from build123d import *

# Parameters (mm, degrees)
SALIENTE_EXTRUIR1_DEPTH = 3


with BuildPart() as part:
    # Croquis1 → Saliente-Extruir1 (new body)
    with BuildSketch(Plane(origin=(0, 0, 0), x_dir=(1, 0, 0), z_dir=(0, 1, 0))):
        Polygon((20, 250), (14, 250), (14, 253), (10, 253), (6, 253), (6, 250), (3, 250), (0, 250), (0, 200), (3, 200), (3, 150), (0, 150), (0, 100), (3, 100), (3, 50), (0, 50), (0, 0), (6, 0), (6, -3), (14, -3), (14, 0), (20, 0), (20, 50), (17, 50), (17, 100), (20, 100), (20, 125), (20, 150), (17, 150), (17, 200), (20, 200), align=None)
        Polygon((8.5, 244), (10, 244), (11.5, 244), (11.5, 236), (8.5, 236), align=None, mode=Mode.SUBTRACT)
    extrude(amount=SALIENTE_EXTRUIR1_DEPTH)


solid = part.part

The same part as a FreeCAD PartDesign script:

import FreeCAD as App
import Part
import Sketcher

doc = App.newDocument("Part")
params = doc.addObject("Spreadsheet::Sheet", "Params")
for row, (alias, value) in enumerate([
    ("sketch1_width", "6 mm"),
    ("sketch1_width2", "8 mm"),
    ("sketch1_width3", "3 mm"),
    ("sketch1_height", "50 mm"),
    ("pad1_length", "3 mm"),
], start=1):
    params.set(f"A{row}", alias)
    params.set(f"B{row}", "=" + value)
    params.setAlias(f"B{row}", alias)

body = doc.addObject("PartDesign::Body", "Body")

# Sketch on XZ plane
sketch1 = body.newObject("Sketcher::SketchObject", "Sketch")
sketch1.AttachmentSupport = (doc.getObject("XZ_Plane"), [""])
sketch1.MapMode = "FlatFace"
sketch1.addGeometry([
    Part.LineSegment(App.Vector(20, -250, 0), App.Vector(14, -250, 0)),  # 0
    Part.LineSegment(App.Vector(14, -250, 0), App.Vector(14, -253, 0)),  # 1
    Part.LineSegment(App.Vector(14, -253, 0), App.Vector(6, -253, 0)),  # 2
    Part.LineSegment(App.Vector(6, -253, 0), App.Vector(6, -250, 0)),  # 3
    Part.LineSegment(App.Vector(6, -250, 0), App.Vector(0, -250, 0)),  # 4
    Part.LineSegment(App.Vector(0, -250, 0), App.Vector(0, -200, 0)),  # 5
    Part.LineSegment(App.Vector(0, -200, 0), App.Vector(3, -200, 0)),  # 6
    Part.LineSegment(App.Vector(3, -200, 0), App.Vector(3, -150, 0)),  # 7
    Part.LineSegment(App.Vector(3, -150, 0), App.Vector(0, -150, 0)),  # 8
    Part.LineSegment(App.Vector(0, -150, 0), App.Vector(0, -100, 0)),  # 9
    Part.LineSegment(App.Vector(0, -100, 0), App.Vector(3, -100, 0)),  # 10
    Part.LineSegment(App.Vector(3, -100, 0), App.Vector(3, -50, 0)),  # 11
    Part.LineSegment(App.Vector(3, -50, 0), App.Vector(0, -50, 0)),  # 12
    Part.LineSegment(App.Vector(0, -50, 0), App.Vector(0, 0, 0)),  # 13
    Part.LineSegment(App.Vector(0, 0, 0), App.Vector(6, 0, 0)),  # 14
    Part.LineSegment(App.Vector(6, 0, 0), App.Vector(6, 3, 0)),  # 15
    Part.LineSegment(App.Vector(6, 3, 0), App.Vector(14, 3, 0)),  # 16
    Part.LineSegment(App.Vector(14, 3, 0), App.Vector(14, 0, 0)),  # 17
    Part.LineSegment(App.Vector(14, 0, 0), App.Vector(20, 0, 0)),  # 18
    Part.LineSegment(App.Vector(20, 0, 0), App.Vector(20, -50, 0)),  # 19
    Part.LineSegment(App.Vector(20, -50, 0), App.Vector(17, -50, 0)),  # 20
    Part.LineSegment(App.Vector(17, -50, 0), App.Vector(17, -100, 0)),  # 21
    Part.LineSegment(App.Vector(17, -100, 0), App.Vector(20, -100, 0)),  # 22
    Part.LineSegment(App.Vector(20, -100, 0), App.Vector(20, -150, 0)),  # 23
    Part.LineSegment(App.Vector(20, -150, 0), App.Vector(17, -150, 0)),  # 24
    Part.LineSegment(App.Vector(17, -150, 0), App.Vector(17, -200, 0)),  # 25
    Part.LineSegment(App.Vector(17, -200, 0), App.Vector(20, -200, 0)),  # 26
    Part.LineSegment(App.Vector(20, -200, 0), App.Vector(20, -250, 0)),  # 27
    Part.LineSegment(App.Vector(8.5, -236, 0), App.Vector(8.5, -244, 0)),  # 28
    Part.LineSegment(App.Vector(8.5, -244, 0), App.Vector(11.5, -244, 0)),  # 29
    Part.LineSegment(App.Vector(11.5, -244, 0), App.Vector(11.5, -236, 0)),  # 30
    Part.LineSegment(App.Vector(11.5, -236, 0), App.Vector(8.5, -236, 0)),  # 31
], False)
sketch1.addConstraint([
    Sketcher.Constraint("Coincident", 0, 2, 1, 1),
    Sketcher.Constraint("Coincident", 1, 2, 2, 1),
    Sketcher.Constraint("Coincident", 2, 2, 3, 1),
    Sketcher.Constraint("Coincident", 3, 2, 4, 1),
    Sketcher.Constraint("Coincident", 4, 2, 5, 1),
    Sketcher.Constraint("Coincident", 5, 2, 6, 1),
    Sketcher.Constraint("Coincident", 6, 2, 7, 1),
    Sketcher.Constraint("Coincident", 7, 2, 8, 1),
    Sketcher.Constraint("Coincident", 8, 2, 9, 1),
    Sketcher.Constraint("Coincident", 9, 2, 10, 1),
    Sketcher.Constraint("Coincident", 10, 2, 11, 1),
    Sketcher.Constraint("Coincident", 11, 2, 12, 1),
    Sketcher.Constraint("Coincident", 12, 2, 13, 1),
    Sketcher.Constraint("Coincident", 13, 2, 14, 1),
    Sketcher.Constraint("Coincident", 14, 2, 15, 1),
    Sketcher.Constraint("Coincident", 15, 2, 16, 1),
    Sketcher.Constraint("Coincident", 16, 2, 17, 1),
    Sketcher.Constraint("Coincident", 17, 2, 18, 1),
    Sketcher.Constraint("Coincident", 18, 2, 19, 1),
    Sketcher.Constraint("Coincident", 19, 2, 20, 1),
    Sketcher.Constraint("Coincident", 20, 2, 21, 1),
    Sketcher.Constraint("Coincident", 21, 2, 22, 1),
    Sketcher.Constraint("Coincident", 22, 2, 23, 1),
    Sketcher.Constraint("Coincident", 23, 2, 24, 1),
    Sketcher.Constraint("Coincident", 24, 2, 25, 1),
    Sketcher.Constraint("Coincident", 25, 2, 26, 1),
    Sketcher.Constraint("Coincident", 26, 2, 27, 1),
    Sketcher.Constraint("Coincident", 27, 2, 0, 1),
    Sketcher.Constraint("Coincident", 28, 2, 29, 1),
    Sketcher.Constraint("Coincident", 29, 2, 30, 1),
    Sketcher.Constraint("Coincident", 30, 2, 31, 1),
    Sketcher.Constraint("Coincident", 31, 2, 28, 1),
    Sketcher.Constraint("Horizontal", 0),
    Sketcher.Constraint("Vertical", 1),
    Sketcher.Constraint("Horizontal", 2),
    Sketcher.Constraint("Vertical", 3),
    Sketcher.Constraint("Horizontal", 4),
    Sketcher.Constraint("Vertical", 5),
    Sketcher.Constraint("Horizontal", 6),
    Sketcher.Constraint("Vertical", 7),
    Sketcher.Constraint("Horizontal", 8),
    Sketcher.Constraint("Vertical", 9),
    Sketcher.Constraint("Horizontal", 10),
    Sketcher.Constraint("Vertical", 11),
    Sketcher.Constraint("Horizontal", 12),
    Sketcher.Constraint("Vertical", 13),
    Sketcher.Constraint("Horizontal", 14),
    Sketcher.Constraint("Vertical", 15),
    Sketcher.Constraint("Horizontal", 16),
    Sketcher.Constraint("Vertical", 17),
    Sketcher.Constraint("Horizontal", 18),
    Sketcher.Constraint("Vertical", 19),
    Sketcher.Constraint("Horizontal", 20),
    Sketcher.Constraint("Vertical", 21),
    Sketcher.Constraint("Horizontal", 22),
    Sketcher.Constraint("Vertical", 23),
    Sketcher.Constraint("Horizontal", 24),
    Sketcher.Constraint("Vertical", 25),
    Sketcher.Constraint("Horizontal", 26),
    Sketcher.Constraint("Vertical", 27),
    Sketcher.Constraint("Vertical", 28),
    Sketcher.Constraint("Horizontal", 29),
    Sketcher.Constraint("Vertical", 30),
    Sketcher.Constraint("Horizontal", 31),
    Sketcher.Constraint("Coincident", 13, 2, -1, 1),
    Sketcher.Constraint("PointOnObject", 4, 2, -2),
    Sketcher.Constraint("PointOnObject", 8, 2, -2),
    Sketcher.Constraint("PointOnObject", 17, 2, -1),
    Sketcher.Constraint("Horizontal", 0, 2, 3, 2),
    Sketcher.Constraint("Horizontal", 12, 2, 19, 2),
    Sketcher.Constraint("Horizontal", 10, 2, 21, 2),
    Sketcher.Constraint("Horizontal", 8, 2, 23, 2),
    Sketcher.Constraint("Horizontal", 6, 2, 25, 2),
    Sketcher.Constraint("Vertical", 7, 2, 10, 2),
    Sketcher.Constraint("Vertical", 3, 2, 14, 2),
    Sketcher.Constraint("Vertical", 1, 2, 16, 2),
    Sketcher.Constraint("Vertical", 19, 2, 22, 2),
    Sketcher.Constraint("Vertical", 21, 2, 24, 2),
    Sketcher.Constraint("Vertical", 23, 2, 26, 2),
    Sketcher.Constraint("Equal", 0, 4),
    Sketcher.Constraint("Equal", 12, 20),
    Sketcher.Constraint("Equal", 26, 29),
    Sketcher.Constraint("Equal", 31, 1),
    Sketcher.Constraint("Equal", 5, 7),
    Sketcher.Constraint("Equal", 7, 9),
    Sketcher.Constraint("Equal", 9, 11),
    Sketcher.Constraint("Equal", 11, 13),
    Sketcher.Constraint("Equal", 3, 15),
    Sketcher.Constraint("Equal", 16, 28),
    Sketcher.Constraint("DistanceX", 0, 2, 0, 1, 6.0),
    Sketcher.Constraint("DistanceX", 2, 2, 2, 1, 8.0),
    Sketcher.Constraint("DistanceX", 6, 1, 6, 2, 3.0),
    Sketcher.Constraint("DistanceY", 5, 1, 5, 2, 50.0),
    Sketcher.Constraint("DistanceY", 28, 2, -1, 1, 244.0),
    Sketcher.Constraint("DistanceX", -1, 1, 28, 2, 8.5),
])
sketch1.setExpression("Constraints[89]", "Params.sketch1_width")
sketch1.setExpression("Constraints[90]", "Params.sketch1_width2")
sketch1.setExpression("Constraints[91]", "Params.sketch1_width3")
sketch1.setExpression("Constraints[92]", "Params.sketch1_height")
pad1 = body.newObject("PartDesign::Pad", "Pad")
pad1.Profile = sketch1
pad1.setExpression("Length", "Params.pad1_length")
pad1.Reversed = True

doc.recompute()
